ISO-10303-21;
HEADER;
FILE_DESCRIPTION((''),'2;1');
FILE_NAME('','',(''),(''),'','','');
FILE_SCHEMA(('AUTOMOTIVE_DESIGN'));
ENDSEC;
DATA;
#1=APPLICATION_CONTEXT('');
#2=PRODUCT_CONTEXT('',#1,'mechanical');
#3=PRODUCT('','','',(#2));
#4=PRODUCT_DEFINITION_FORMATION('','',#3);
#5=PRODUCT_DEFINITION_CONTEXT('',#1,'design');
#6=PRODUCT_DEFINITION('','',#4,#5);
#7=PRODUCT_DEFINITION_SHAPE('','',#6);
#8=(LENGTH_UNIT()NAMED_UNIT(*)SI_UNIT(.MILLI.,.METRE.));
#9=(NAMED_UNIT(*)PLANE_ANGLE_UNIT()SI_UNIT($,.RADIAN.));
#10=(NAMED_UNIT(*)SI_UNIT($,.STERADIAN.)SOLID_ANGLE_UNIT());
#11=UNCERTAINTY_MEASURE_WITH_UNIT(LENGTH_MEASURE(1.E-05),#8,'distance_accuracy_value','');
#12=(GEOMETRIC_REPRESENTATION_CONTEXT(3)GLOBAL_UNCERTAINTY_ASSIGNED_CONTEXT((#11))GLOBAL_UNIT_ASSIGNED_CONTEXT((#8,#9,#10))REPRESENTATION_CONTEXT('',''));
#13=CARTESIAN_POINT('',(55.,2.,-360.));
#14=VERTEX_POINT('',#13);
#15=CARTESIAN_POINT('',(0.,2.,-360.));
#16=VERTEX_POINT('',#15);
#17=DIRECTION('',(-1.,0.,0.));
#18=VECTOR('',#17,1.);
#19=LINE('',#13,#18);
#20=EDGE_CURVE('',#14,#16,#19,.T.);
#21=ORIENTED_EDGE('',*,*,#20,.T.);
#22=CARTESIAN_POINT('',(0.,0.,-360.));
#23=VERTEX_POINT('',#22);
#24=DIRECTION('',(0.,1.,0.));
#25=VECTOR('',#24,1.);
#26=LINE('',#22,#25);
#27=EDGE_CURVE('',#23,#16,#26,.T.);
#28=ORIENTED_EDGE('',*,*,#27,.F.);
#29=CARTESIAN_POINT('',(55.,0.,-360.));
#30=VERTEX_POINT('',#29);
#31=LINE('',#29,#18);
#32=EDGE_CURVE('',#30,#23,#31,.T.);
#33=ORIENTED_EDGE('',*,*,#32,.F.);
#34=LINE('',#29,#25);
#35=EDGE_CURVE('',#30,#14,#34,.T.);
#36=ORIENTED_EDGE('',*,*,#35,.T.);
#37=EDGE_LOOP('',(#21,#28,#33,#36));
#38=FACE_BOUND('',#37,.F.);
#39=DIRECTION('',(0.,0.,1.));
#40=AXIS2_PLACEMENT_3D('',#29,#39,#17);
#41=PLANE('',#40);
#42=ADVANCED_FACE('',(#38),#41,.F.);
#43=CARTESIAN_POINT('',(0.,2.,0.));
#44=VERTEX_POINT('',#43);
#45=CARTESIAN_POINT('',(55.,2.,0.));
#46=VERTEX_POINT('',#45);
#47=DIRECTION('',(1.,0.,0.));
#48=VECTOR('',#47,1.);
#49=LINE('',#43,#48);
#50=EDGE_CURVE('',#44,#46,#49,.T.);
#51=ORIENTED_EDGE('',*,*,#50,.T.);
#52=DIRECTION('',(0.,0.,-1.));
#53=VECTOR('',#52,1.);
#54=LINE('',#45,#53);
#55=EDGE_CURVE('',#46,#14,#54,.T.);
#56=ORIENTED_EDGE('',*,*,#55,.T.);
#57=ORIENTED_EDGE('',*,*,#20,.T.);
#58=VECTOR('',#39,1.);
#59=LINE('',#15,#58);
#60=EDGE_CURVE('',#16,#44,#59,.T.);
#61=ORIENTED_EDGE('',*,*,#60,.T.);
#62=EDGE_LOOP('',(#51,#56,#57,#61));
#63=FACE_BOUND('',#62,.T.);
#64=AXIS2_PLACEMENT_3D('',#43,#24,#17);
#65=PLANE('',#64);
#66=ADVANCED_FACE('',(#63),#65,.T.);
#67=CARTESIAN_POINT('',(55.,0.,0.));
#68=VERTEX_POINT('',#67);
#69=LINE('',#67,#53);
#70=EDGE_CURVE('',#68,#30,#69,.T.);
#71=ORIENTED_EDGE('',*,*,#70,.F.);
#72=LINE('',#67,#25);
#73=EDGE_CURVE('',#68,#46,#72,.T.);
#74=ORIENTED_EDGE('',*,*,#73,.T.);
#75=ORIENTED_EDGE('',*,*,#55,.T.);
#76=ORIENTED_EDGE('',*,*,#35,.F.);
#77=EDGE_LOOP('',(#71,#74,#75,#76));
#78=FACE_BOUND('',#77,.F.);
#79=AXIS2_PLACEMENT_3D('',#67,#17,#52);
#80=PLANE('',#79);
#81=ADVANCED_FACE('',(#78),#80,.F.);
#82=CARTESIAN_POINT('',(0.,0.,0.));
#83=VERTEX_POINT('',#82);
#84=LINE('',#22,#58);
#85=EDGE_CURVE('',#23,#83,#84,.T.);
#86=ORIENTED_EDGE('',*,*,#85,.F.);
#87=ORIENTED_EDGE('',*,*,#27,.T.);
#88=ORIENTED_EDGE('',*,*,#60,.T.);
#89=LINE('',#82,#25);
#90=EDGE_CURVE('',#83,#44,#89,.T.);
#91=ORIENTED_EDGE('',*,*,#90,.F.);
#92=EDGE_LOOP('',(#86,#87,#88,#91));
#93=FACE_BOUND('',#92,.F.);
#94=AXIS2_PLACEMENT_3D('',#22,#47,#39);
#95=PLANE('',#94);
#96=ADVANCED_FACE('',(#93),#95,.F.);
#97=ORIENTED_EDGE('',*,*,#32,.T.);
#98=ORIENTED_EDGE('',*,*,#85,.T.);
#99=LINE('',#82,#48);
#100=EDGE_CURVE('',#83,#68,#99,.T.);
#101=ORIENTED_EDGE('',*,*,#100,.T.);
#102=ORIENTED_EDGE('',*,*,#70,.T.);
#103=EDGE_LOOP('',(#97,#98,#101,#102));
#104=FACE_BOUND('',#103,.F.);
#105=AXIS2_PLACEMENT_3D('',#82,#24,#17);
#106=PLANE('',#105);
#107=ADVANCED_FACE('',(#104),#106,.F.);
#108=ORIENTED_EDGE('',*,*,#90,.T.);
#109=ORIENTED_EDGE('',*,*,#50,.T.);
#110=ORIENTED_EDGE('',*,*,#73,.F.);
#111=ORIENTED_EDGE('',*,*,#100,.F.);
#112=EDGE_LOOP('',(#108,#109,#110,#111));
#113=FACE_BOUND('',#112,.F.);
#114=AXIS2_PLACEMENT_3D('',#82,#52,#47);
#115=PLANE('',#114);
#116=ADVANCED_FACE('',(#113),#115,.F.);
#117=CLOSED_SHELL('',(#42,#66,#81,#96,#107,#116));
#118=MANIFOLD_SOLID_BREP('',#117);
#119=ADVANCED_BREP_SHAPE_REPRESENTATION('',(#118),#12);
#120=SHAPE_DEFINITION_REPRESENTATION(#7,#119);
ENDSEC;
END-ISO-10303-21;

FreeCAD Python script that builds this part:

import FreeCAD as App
import Part
import Sketcher


def add_polygon(sketch, points):
    """Adds a closed chain of lines whose ends are joined by coincident constraints."""
    first, n = sketch.GeometryCount, len(points)
    for a, b in zip(points, points[1:] + points[:1]):
        sketch.addGeometry(Part.LineSegment(App.Vector(*a, 0), App.Vector(*b, 0)), False)
    for i in range(n):
        sketch.addConstraint(Sketcher.Constraint("Coincident", first + i, 2, first + (i + 1) % n, 1))

doc = App.newDocument("Part")
body = doc.addObject("PartDesign::Body", "Body")

sketch1 = body.newObject("Sketcher::SketchObject", "Sketch")
sketch1.AttachmentSupport = (doc.getObject("XZ_Plane"), [""])
sketch1.MapMode = "FlatFace"
add_polygon(sketch1, [(0, -360), (0, 0), (55, 0), (55, -360)])
sketch1.addConstraint([
    Sketcher.Constraint("Vertical", 0),
    Sketcher.Constraint("Horizontal", 1),
    Sketcher.Constraint("Vertical", 2),
    Sketcher.Constraint("Horizontal", 3),
    Sketcher.Constraint("Coincident", 0, 2, -1, 1),
    Sketcher.Constraint("DistanceX", 1, 1, 1, 2, 55.0),
    Sketcher.Constraint("DistanceY", 0, 1, 0, 2, 360.0),
])
pad1 = body.newObject("PartDesign::Pad", "Pad")
pad1.Profile = sketch1
pad1.Length = 2
pad1.Reversed = True

doc.recompute()
